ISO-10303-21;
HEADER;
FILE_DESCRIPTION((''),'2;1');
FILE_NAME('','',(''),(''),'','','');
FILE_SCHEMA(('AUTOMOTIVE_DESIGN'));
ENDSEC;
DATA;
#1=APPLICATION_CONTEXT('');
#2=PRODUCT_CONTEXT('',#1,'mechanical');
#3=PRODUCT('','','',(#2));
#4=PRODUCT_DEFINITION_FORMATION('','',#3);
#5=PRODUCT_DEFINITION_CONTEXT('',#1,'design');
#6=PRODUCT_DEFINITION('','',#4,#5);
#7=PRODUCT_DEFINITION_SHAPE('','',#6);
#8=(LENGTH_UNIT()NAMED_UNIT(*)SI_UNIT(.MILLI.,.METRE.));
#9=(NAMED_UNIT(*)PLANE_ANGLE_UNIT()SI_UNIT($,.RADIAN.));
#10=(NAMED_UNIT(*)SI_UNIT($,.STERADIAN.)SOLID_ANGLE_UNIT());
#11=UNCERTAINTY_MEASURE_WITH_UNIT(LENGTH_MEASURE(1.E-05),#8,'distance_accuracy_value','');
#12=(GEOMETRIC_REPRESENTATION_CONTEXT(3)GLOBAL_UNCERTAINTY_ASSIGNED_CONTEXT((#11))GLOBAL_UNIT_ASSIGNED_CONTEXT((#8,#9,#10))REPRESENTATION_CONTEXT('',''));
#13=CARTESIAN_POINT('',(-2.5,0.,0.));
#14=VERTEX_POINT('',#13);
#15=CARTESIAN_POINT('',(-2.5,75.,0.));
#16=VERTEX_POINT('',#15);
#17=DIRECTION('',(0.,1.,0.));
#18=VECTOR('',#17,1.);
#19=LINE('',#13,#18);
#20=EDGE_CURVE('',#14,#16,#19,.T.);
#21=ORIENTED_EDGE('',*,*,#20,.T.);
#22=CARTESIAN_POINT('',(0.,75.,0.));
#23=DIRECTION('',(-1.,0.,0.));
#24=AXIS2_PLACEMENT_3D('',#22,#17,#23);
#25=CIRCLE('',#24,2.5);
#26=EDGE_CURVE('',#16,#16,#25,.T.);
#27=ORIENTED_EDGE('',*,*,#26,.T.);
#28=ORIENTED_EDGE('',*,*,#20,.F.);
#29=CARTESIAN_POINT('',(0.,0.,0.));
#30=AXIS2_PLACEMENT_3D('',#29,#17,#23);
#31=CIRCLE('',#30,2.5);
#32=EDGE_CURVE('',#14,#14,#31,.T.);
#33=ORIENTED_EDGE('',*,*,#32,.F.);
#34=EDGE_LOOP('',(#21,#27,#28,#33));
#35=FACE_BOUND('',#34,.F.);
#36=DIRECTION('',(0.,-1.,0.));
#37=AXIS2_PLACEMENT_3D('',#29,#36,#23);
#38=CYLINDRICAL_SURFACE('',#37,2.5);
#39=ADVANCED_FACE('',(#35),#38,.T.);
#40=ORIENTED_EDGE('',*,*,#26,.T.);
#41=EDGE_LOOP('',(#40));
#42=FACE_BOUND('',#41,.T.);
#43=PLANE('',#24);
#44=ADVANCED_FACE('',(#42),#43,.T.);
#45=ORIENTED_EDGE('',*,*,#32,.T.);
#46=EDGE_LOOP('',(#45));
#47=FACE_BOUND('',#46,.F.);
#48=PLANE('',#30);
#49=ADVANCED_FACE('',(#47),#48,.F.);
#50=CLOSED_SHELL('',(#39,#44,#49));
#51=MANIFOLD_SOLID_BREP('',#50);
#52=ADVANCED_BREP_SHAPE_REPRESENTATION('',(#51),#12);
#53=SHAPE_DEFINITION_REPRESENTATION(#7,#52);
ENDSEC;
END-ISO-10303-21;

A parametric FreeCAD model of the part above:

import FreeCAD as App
import Part
import Sketcher
from FreeCAD import Vector

doc = App.newDocument("Part")
params = doc.addObject("Spreadsheet::Sheet", "Params")
for row, (alias, value) in enumerate([
    ("sketch1_diameter", "5 mm"),
    ("pad1_length", "75 mm"),
], start=1):
    params.set(f"A{row}", alias)
    params.set(f"B{row}", "=" + value)
    params.setAlias(f"B{row}", alias)

body = doc.addObject("PartDesign::Body", "Body")

sketch1 = body.newObject("Sketcher::SketchObject", "Sketch")
sketch1.AttachmentSupport = (doc.getObject("XZ_Plane"), [""])
sketch1.MapMode = "FlatFace"
sketch1.addGeometry(Part.Circle(Vector(0, 0, 0), Vector(0, 0, 1), 2.5), False)
sketch1.addConstraint(Sketcher.Constraint("Coincident", 0, 3, -1, 1))
sketch1.addConstraint(Sketcher.Constraint("Diameter", 0, 5.0))
sketch1.setExpression("Constraints[1]", "Params.sketch1_diameter")
pad1 = body.newObject("PartDesign::Pad", "Pad")
pad1.Profile = sketch1
pad1.setExpression("Length", "Params.pad1_length")
pad1.Reversed = True

doc.recompute()
